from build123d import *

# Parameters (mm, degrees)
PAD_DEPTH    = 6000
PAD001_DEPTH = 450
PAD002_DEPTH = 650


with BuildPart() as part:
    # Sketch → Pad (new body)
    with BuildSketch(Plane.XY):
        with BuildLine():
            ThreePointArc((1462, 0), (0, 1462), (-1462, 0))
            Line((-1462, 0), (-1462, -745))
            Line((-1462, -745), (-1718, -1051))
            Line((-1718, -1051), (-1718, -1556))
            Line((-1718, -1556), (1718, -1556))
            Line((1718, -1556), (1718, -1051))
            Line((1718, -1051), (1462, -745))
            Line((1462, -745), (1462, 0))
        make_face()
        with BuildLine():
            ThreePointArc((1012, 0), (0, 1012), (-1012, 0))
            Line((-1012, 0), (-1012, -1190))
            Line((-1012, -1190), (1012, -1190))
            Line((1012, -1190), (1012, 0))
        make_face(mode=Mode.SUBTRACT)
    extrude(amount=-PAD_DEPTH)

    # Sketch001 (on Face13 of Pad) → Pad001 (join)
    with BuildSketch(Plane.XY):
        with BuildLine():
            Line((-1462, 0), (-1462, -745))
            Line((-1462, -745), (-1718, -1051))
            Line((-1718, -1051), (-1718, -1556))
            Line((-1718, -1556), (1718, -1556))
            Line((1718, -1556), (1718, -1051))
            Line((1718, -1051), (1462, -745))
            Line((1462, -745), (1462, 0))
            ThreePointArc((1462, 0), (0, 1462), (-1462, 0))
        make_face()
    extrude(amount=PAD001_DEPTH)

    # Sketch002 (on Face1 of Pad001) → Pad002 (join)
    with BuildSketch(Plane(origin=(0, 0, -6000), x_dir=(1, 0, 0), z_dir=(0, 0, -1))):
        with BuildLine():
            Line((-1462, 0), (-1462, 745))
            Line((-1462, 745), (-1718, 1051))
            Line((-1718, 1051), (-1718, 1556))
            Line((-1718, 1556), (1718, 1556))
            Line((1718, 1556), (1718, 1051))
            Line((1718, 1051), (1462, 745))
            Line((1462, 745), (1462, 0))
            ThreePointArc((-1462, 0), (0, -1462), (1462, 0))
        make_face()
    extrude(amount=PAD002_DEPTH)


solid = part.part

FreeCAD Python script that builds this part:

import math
import FreeCAD as App
import Part
import Sketcher

doc = App.newDocument("Part")
body = doc.addObject("PartDesign::Body", "Body")

# Sketch on XY plane
sketch1 = body.newObject("Sketcher::SketchObject", "Sketch")
sketch1.AttachmentSupport = (doc.getObject("XY_Plane"), [""])
sketch1.MapMode = "FlatFace"
sketch1.addGeometry(Part.ArcOfCircle(Part.Circle(App.Vector(0, 0, 0), App.Vector(0, 0, 1), 1462), math.radians(0), math.radians(180)), False)
sketch1.addGeometry(Part.LineSegment(App.Vector(-1462, 0, 0), App.Vector(-1462, -745, 0)), False)
sketch1.addGeometry(Part.LineSegment(App.Vector(-1462, -745, 0), App.Vector(-1718, -1051, 0)), False)
sketch1.addGeometry(Part.LineSegment(App.Vector(-1718, -1051, 0), App.Vector(-1718, -1556, 0)), False)
sketch1.addGeometry(Part.LineSegment(App.Vector(-1718, -1556, 0), App.Vector(1718, -1556, 0)), False)
sketch1.addGeometry(Part.LineSegment(App.Vector(1718, -1556, 0), App.Vector(1718, -1051, 0)), False)
sketch1.addGeometry(Part.LineSegment(App.Vector(1718, -1051, 0), App.Vector(1462, -745, 0)), False)
sketch1.addGeometry(Part.LineSegment(App.Vector(1462, -745, 0), App.Vector(1462, 0, 0)), False)
sketch1.addGeometry(Part.ArcOfCircle(Part.Circle(App.Vector(0, 0, 0), App.Vector(0, 0, 1), 1012), math.radians(0), math.radians(180)), False)
sketch1.addGeometry(Part.LineSegment(App.Vector(1012, 0, 0), App.Vector(1012, -1190, 0)), False)
sketch1.addGeometry(Part.LineSegment(App.Vector(1012, -1190, 0), App.Vector(-1012, -1190, 0)), False)
sketch1.addGeometry(Part.LineSegment(App.Vector(-1012, -1190, 0), App.Vector(-1012, 0, 0)), False)
sketch1.addConstraint(Sketcher.Constraint("Coincident", 0, 2, 1, 1))
sketch1.addConstraint(Sketcher.Constraint("Coincident", 1, 2, 2, 1))
sketch1.addConstraint(Sketcher.Constraint("Coincident", 2, 2, 3, 1))
sketch1.addConstraint(Sketcher.Constraint("Coincident", 3, 2, 4, 1))
sketch1.addConstraint(Sketcher.Constraint("Coincident", 4, 2, 5, 1))
sketch1.addConstraint(Sketcher.Constraint("Coincident", 5, 2, 6, 1))
sketch1.addConstraint(Sketcher.Constraint("Coincident", 6, 2, 7, 1))
sketch1.addConstraint(Sketcher.Constraint("Coincident", 7, 2, 0, 1))
sketch1.addConstraint(Sketcher.Constraint("Coincident", 8, 1, 9, 1))
sketch1.addConstraint(Sketcher.Constraint("Coincident", 9, 2, 10, 1))
sketch1.addConstraint(Sketcher.Constraint("Coincident", 10, 2, 11, 1))
sketch1.addConstraint(Sketcher.Constraint("Coincident", 11, 2, 8, 2))
sketch1.addConstraint(Sketcher.Constraint("Vertical", 1))
sketch1.addConstraint(Sketcher.Constraint("Vertical", 3))
sketch1.addConstraint(Sketcher.Constraint("Horizontal", 4))
sketch1.addConstraint(Sketcher.Constraint("Vertical", 5))
sketch1.addConstraint(Sketcher.Constraint("Vertical", 7))
sketch1.addConstraint(Sketcher.Constraint("Vertical", 9))
sketch1.addConstraint(Sketcher.Constraint("Horizontal", 10))
sketch1.addConstraint(Sketcher.Constraint("Vertical", 11))
sketch1.addConstraint(Sketcher.Constraint("Coincident", 0, 3, -1, 1))
sketch1.addConstraint(Sketcher.Constraint("Coincident", 8, 3, -1, 1))
sketch1.addConstraint(Sketcher.Constraint("Symmetric", 2, 2, 5, 2, -2))
sketch1.addConstraint(Sketcher.Constraint("PointOnObject", 7, 2, -1))
sketch1.addConstraint(Sketcher.Constraint("PointOnObject", 11, 2, -1))
sketch1.addConstraint(Sketcher.Constraint("Horizontal", 1, 2, 6, 2))
sketch1.addConstraint(Sketcher.Constraint("Equal", 1, 7))
sketch1.addConstraint(Sketcher.Constraint("Equal", 9, 11))
sketch1.addConstraint(Sketcher.Constraint("Radius", 0, 1462.0))
sketch1.addConstraint(Sketcher.Constraint("Radius", 8, 1012.0))
sketch1.addConstraint(Sketcher.Constraint("DistanceX", 4, 1, 4, 2, 3436.0))
sketch1.addConstraint(Sketcher.Constraint("DistanceY", 1, 2, 1, 1, 745.0))
sketch1.addConstraint(Sketcher.Constraint("DistanceY", 3, 2, 3, 1, 505.0))
sketch1.addConstraint(Sketcher.Constraint("DistanceY", 9, 2, 9, 1, 1190.0))
sketch1.addConstraint(Sketcher.Constraint("DistanceY", 2, 2, -1, 1, 1051.0))
pad1 = body.newObject("PartDesign::Pad", "Pad")
pad1.Profile = sketch1
pad1.Length = 6000
pad1.Reversed = True

# Sketch on XY plane
sketch2 = body.newObject("Sketcher::SketchObject", "Sketch001")
sketch2.AttachmentSupport = (doc.getObject("XY_Plane"), [""])
sketch2.MapMode = "FlatFace"
sketch2.addGeometry(Part.LineSegment(App.Vector(-1462, 0, 0), App.Vector(-1462, -745, 0)), False)
sketch2.addGeometry(Part.LineSegment(App.Vector(-1462, -745, 0), App.Vector(-1718, -1051, 0)), False)
sketch2.addGeometry(Part.LineSegment(App.Vector(-1718, -1051, 0), App.Vector(-1718, -1556, 0)), False)
sketch2.addGeometry(Part.LineSegment(App.Vector(-1718, -1556, 0), App.Vector(1718, -1556, 0)), False)
sketch2.addGeometry(Part.LineSegment(App.Vector(1718, -1556, 0), App.Vector(1718, -1051, 0)), False)
sketch2.addGeometry(Part.LineSegment(App.Vector(1718, -1051, 0), App.Vector(1462, -745, 0)), False)
sketch2.addGeometry(Part.LineSegment(App.Vector(1462, -745, 0), App.Vector(1462, 0, 0)), False)
sketch2.addGeometry(Part.ArcOfCircle(Part.Circle(App.Vector(0, 0, 0), App.Vector(0, 0, 1), 1462), math.radians(0), math.radians(180)), False)
sketch2.addConstraint(Sketcher.Constraint("Coincident", 0, 2, 1, 1))
sketch2.addConstraint(Sketcher.Constraint("Coincident", 1, 2, 2, 1))
sketch2.addConstraint(Sketcher.Constraint("Coincident", 2, 2, 3, 1))
sketch2.addConstraint(Sketcher.Constraint("Coincident", 3, 2, 4, 1))
sketch2.addConstraint(Sketcher.Constraint("Coincident", 4, 2, 5, 1))
sketch2.addConstraint(Sketcher.Constraint("Coincident", 5, 2, 6, 1))
sketch2.addConstraint(Sketcher.Constraint("Coincident", 6, 2, 7, 1))
sketch2.addConstraint(Sketcher.Constraint("Coincident", 7, 2, 0, 1))
sketch2.addConstraint(Sketcher.Constraint("Vertical", 0))
sketch2.addConstraint(Sketcher.Constraint("Vertical", 2))
sketch2.addConstraint(Sketcher.Constraint("Horizontal", 3))
sketch2.addConstraint(Sketcher.Constraint("Vertical", 4))
sketch2.addConstraint(Sketcher.Constraint("Vertical", 6))
sketch2.addConstraint(Sketcher.Constraint("Coincident", 7, 3, -1, 1))
sketch2.addConstraint(Sketcher.Constraint("Symmetric", 1, 2, 4, 2, -2))
sketch2.addConstraint(Sketcher.Constraint("PointOnObject", 6, 2, -1))
sketch2.addConstraint(Sketcher.Constraint("Horizontal", 0, 2, 5, 2))
sketch2.addConstraint(Sketcher.Constraint("Equal", 0, 6))
sketch2.addConstraint(Sketcher.Constraint("Radius", 7, 1462.0))
sketch2.addConstraint(Sketcher.Constraint("DistanceX", 3, 1, 3, 2, 3436.0))
sketch2.addConstraint(Sketcher.Constraint("DistanceY", 0, 2, 0, 1, 745.0))
sketch2.addConstraint(Sketcher.Constraint("DistanceY", 2, 2, 2, 1, 505.0))
sketch2.addConstraint(Sketcher.Constraint("DistanceY", 1, 2, -1, 1, 1051.0))
pad2 = body.newObject("PartDesign::Pad", "Pad001")
pad2.Profile = sketch2
pad2.Length = 450

# Sketch on XY plane
sketch3 = body.newObject("Sketcher::SketchObject", "Sketch002")
sketch3.AttachmentSupport = (doc.getObject("XY_Plane"), [""])
sketch3.MapMode = "FlatFace"
sketch3.AttachmentOffset = App.Placement(App.Vector(0, 0, -6000), App.Rotation())
sketch3.addGeometry(Part.LineSegment(App.Vector(-1462, -745, 0), App.Vector(-1462, 0, 0)), False)
sketch3.addGeometry(Part.ArcOfCircle(Part.Circle(App.Vector(0, 0, 0), App.Vector(0, 0, 1), 1462), math.radians(0), math.radians(180)), False)
sketch3.addGeometry(Part.LineSegment(App.Vector(1462, 0, 0), App.Vector(1462, -745, 0)), False)
sketch3.addGeometry(Part.LineSegment(App.Vector(1462, -745, 0), App.Vector(1718, -1051, 0)), False)
sketch3.addGeometry(Part.LineSegment(App.Vector(1718, -1051, 0), App.Vector(1718, -1556, 0)), False)
sketch3.addGeometry(Part.LineSegment(App.Vector(1718, -1556, 0), App.Vector(-1718, -1556, 0)), False)
sketch3.addGeometry(Part.LineSegment(App.Vector(-1718, -1556, 0), App.Vector(-1718, -1051, 0)), False)
sketch3.addGeometry(Part.LineSegment(App.Vector(-1718, -1051, 0), App.Vector(-1462, -745, 0)), False)
sketch3.addConstraint(Sketcher.Constraint("Coincident", 0, 2, 1, 2))
sketch3.addConstraint(Sketcher.Constraint("Coincident", 1, 1, 2, 1))
sketch3.addConstraint(Sketcher.Constraint("Coincident", 2, 2, 3, 1))
sketch3.addConstraint(Sketcher.Constraint("Coincident", 3, 2, 4, 1))
sketch3.addConstraint(Sketcher.Constraint("Coincident", 4, 2, 5, 1))
sketch3.addConstraint(Sketcher.Constraint("Coincident", 5, 2, 6, 1))
sketch3.addConstraint(Sketcher.Constraint("Coincident", 6, 2, 7, 1))
sketch3.addConstraint(Sketcher.Constraint("Coincident", 7, 2, 0, 1))
sketch3.addConstraint(Sketcher.Constraint("Vertical", 0))
sketch3.addConstraint(Sketcher.Constraint("Vertical", 2))
sketch3.addConstraint(Sketcher.Constraint("Vertical", 4))
sketch3.addConstraint(Sketcher.Constraint("Horizontal", 5))
sketch3.addConstraint(Sketcher.Constraint("Vertical", 6))
sketch3.addConstraint(Sketcher.Constraint("Coincident", 1, 3, -1, 1))
sketch3.addConstraint(Sketcher.Constraint("Symmetric", 3, 2, 6, 2, -2))
sketch3.addConstraint(Sketcher.Constraint("PointOnObject", 0, 2, -1))
sketch3.addConstraint(Sketcher.Constraint("Horizontal", 2, 2, 7, 2))
sketch3.addConstraint(Sketcher.Constraint("Equal", 0, 2))
sketch3.addConstraint(Sketcher.Constraint("Radius", 1, 1462.0))
sketch3.addConstraint(Sketcher.Constraint("DistanceX", 5, 2, 5, 1, 3436.0))
sketch3.addConstraint(Sketcher.Constraint("DistanceY", 0, 1, 0, 2, 745.0))
sketch3.addConstraint(Sketcher.Constraint("DistanceY", 4, 2, 4, 1, 505.0))
sketch3.addConstraint(Sketcher.Constraint("DistanceY", 3, 2, -1, 1, 1051.0))
pad3 = body.newObject("PartDesign::Pad", "Pad002")
pad3.Profile = sketch3
pad3.Length = 650
pad3.Reversed = True

doc.recompute()
